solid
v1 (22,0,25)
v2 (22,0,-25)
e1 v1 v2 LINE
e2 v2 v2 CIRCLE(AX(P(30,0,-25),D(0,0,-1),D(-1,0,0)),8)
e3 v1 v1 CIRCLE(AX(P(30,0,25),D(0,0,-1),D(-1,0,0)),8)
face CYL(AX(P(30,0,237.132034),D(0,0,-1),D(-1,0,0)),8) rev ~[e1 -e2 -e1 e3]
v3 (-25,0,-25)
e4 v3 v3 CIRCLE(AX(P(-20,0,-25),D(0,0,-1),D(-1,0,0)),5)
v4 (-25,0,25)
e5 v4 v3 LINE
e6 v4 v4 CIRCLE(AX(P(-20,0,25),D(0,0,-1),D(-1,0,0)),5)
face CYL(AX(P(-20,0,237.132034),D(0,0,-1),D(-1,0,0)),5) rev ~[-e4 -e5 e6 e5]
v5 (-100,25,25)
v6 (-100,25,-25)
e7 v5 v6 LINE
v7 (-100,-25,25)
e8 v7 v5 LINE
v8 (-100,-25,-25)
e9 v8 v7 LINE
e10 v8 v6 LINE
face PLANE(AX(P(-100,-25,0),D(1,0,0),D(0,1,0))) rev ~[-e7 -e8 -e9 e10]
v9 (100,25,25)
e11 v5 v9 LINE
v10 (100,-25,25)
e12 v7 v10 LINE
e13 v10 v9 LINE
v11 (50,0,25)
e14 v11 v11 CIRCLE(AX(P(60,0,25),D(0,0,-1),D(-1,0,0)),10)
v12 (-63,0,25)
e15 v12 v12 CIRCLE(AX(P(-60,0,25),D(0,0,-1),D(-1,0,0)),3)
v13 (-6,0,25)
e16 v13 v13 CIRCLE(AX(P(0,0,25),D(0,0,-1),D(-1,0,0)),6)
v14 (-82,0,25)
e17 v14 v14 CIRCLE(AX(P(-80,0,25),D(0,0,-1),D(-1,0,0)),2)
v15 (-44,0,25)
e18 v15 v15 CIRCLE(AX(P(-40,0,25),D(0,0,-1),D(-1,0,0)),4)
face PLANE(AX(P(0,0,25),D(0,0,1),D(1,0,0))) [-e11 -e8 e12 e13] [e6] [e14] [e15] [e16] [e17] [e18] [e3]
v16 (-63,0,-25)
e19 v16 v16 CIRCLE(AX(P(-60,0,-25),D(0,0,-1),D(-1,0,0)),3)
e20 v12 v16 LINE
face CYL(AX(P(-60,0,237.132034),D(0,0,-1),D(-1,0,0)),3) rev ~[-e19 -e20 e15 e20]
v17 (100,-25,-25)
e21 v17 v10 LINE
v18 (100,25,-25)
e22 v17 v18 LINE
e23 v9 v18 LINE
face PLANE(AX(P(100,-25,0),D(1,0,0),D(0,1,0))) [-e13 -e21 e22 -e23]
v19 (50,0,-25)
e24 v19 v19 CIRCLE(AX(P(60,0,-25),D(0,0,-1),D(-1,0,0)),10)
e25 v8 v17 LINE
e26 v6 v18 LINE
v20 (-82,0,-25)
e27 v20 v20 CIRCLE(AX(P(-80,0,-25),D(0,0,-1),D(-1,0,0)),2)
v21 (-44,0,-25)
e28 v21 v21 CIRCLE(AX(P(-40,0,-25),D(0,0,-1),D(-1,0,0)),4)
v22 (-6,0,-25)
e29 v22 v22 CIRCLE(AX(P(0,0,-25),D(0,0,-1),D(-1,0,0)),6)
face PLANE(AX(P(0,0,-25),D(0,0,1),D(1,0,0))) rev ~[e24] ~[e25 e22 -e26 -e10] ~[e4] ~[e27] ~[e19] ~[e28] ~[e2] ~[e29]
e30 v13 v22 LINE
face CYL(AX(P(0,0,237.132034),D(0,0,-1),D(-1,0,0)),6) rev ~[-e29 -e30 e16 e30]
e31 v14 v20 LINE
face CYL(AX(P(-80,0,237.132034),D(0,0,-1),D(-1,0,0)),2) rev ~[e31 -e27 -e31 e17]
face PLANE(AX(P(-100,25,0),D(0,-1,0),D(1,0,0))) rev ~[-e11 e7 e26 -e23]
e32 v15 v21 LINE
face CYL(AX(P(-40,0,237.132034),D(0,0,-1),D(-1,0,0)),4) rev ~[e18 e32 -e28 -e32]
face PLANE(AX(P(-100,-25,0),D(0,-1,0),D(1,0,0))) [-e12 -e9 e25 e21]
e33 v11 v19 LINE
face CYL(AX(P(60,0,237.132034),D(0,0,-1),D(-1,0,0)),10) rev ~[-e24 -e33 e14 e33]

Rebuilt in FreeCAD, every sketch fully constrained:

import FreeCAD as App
import Part
import Sketcher

V = App.Vector


def add_polygon(sketch, points):
    """Adds a closed chain of lines whose ends are joined by coincident constraints."""
    first, n = sketch.GeometryCount, len(points)
    for a, b in zip(points, points[1:] + points[:1]):
        sketch.addGeometry(Part.LineSegment(App.Vector(*a, 0), App.Vector(*b, 0)), False)
    for i in range(n):
        sketch.addConstraint(Sketcher.Constraint("Coincident", first + i, 2, first + (i + 1) % n, 1))

doc = App.newDocument("Part")
body = doc.addObject("PartDesign::Body", "Body")

sketch1 = body.newObject("Sketcher::SketchObject", "Sketch")
sketch1.AttachmentSupport = (doc.getObject("XY_Plane"), [""])
sketch1.MapMode = "FlatFace"
add_polygon(sketch1, [(-100, 25), (-100, -25), (100, -25), (100, 25)])
sketch1.addConstraint([
    Sketcher.Constraint("Vertical", 0),
    Sketcher.Constraint("Horizontal", 1),
    Sketcher.Constraint("Vertical", 2),
    Sketcher.Constraint("Horizontal", 3),
    Sketcher.Constraint("Symmetric", 0, 2, 2, 2, -1, 1),
    Sketcher.Constraint("DistanceX", 1, 1, 1, 2, 200.0),
    Sketcher.Constraint("DistanceY", 0, 2, 0, 1, 50.0),
])
pad1 = body.newObject("PartDesign::Pad", "Pad")
pad1.Profile = sketch1
pad1.Length = 50
pad1.Midplane = True

sketch2 = body.newObject("Sketcher::SketchObject", "Sketch001")
sketch2.AttachmentSupport = (doc.getObject("XY_Plane"), [""])
sketch2.MapMode = "FlatFace"
sketch2.AttachmentOffset = App.Placement(V(0, 0, 25), App.Rotation())
sketch2.addGeometry(Part.Circle(V(-80, 0, 0), V(0, 0, 1), 2), False)
sketch2.addConstraint([
    Sketcher.Constraint("PointOnObject", 0, 3, -1),
    Sketcher.Constraint("Diameter", 0, 4.0),
    Sketcher.Constraint("DistanceX", 0, 3, -1, 1, 80.0),
])
doc.recompute()
hole = body.newObject("PartDesign::Hole", "Hole")
hole.Profile = sketch2
hole.ThreadType = "None"
hole.Diameter = 4
hole.DepthType = "ThroughAll"

sketch3 = body.newObject("Sketcher::SketchObject", "Sketch002")
sketch3.AttachmentSupport = (doc.getObject("XY_Plane"), [""])
sketch3.MapMode = "FlatFace"
sketch3.AttachmentOffset = App.Placement(V(0, 0, 25), App.Rotation())
sketch3.addGeometry(Part.Circle(V(-60, 0, 0), V(0, 0, 1), 3), False)
sketch3.addConstraint([
    Sketcher.Constraint("PointOnObject", 0, 3, -1),
    Sketcher.Constraint("Diameter", 0, 6.0),
    Sketcher.Constraint("DistanceX", 0, 3, -1, 1, 60.0),
])
doc.recompute()
hole2 = body.newObject("PartDesign::Hole", "Hole001")
hole2.Profile = sketch3
hole2.ThreadType = "None"
hole2.Diameter = 6
hole2.DepthType = "ThroughAll"

sketch4 = body.newObject("Sketcher::SketchObject", "Sketch003")
sketch4.AttachmentSupport = (doc.getObject("XY_Plane"), [""])
sketch4.MapMode = "FlatFace"
sketch4.AttachmentOffset = App.Placement(V(0, 0, 25), App.Rotation())
sketch4.addGeometry(Part.Circle(V(-40, 0, 0), V(0, 0, 1), 4), False)
sketch4.addConstraint([
    Sketcher.Constraint("PointOnObject", 0, 3, -1),
    Sketcher.Constraint("Diameter", 0, 8.0),
    Sketcher.Constraint("DistanceX", 0, 3, -1, 1, 40.0),
])
doc.recompute()
hole3 = body.newObject("PartDesign::Hole", "Hole002")
hole3.Profile = sketch4
hole3.ThreadType = "None"
hole3.Diameter = 8
hole3.DepthType = "ThroughAll"

sketch5 = body.newObject("Sketcher::SketchObject", "Sketch004")
sketch5.AttachmentSupport = (doc.getObject("XY_Plane"), [""])
sketch5.MapMode = "FlatFace"
sketch5.AttachmentOffset = App.Placement(V(0, 0, 25), App.Rotation())
sketch5.addGeometry(Part.Circle(V(-20, 0, 0), V(0, 0, 1), 5), False)
sketch5.addConstraint([
    Sketcher.Constraint("PointOnObject", 0, 3, -1),
    Sketcher.Constraint("Diameter", 0, 10.0),
    Sketcher.Constraint("DistanceX", 0, 3, -1, 1, 20.0),
])
doc.recompute()
hole4 = body.newObject("PartDesign::Hole", "Hole003")
hole4.Profile = sketch5
hole4.ThreadType = "None"
hole4.Diameter = 10
hole4.DepthType = "ThroughAll"

sketch6 = body.newObject("Sketcher::SketchObject", "Sketch005")
sketch6.AttachmentSupport = (doc.getObject("XY_Plane"), [""])
sketch6.MapMode = "FlatFace"
sketch6.AttachmentOffset = App.Placement(V(0, 0, 25), App.Rotation())
sketch6.addGeometry(Part.Circle(V(0, 0, 0), V(0, 0, 1), 6), False)
sketch6.addConstraint([
    Sketcher.Constraint("Coincident", 0, 3, -1, 1),
    Sketcher.Constraint("Diameter", 0, 12.0),
])
doc.recompute()
hole5 = body.newObject("PartDesign::Hole", "Hole004")
hole5.Profile = sketch6
hole5.ThreadType = "None"
hole5.Diameter = 12
hole5.DepthType = "ThroughAll"

sketch7 = body.newObject("Sketcher::SketchObject", "Sketch006")
sketch7.AttachmentSupport = (doc.getObject("XY_Plane"), [""])
sketch7.MapMode = "FlatFace"
sketch7.AttachmentOffset = App.Placement(V(0, 0, 25), App.Rotation())
sketch7.addGeometry(Part.Circle(V(30, 0, 0), V(0, 0, 1), 8), False)
sketch7.addConstraint([
    Sketcher.Constraint("PointOnObject", 0, 3, -1),
    Sketcher.Constraint("Diameter", 0, 16.0),
    Sketcher.Constraint("DistanceX", -1, 1, 0, 3, 30.0),
])
doc.recompute()
hole6 = body.newObject("PartDesign::Hole", "Hole005")
hole6.Profile = sketch7
hole6.ThreadType = "None"
hole6.Diameter = 16
hole6.DepthType = "ThroughAll"

sketch8 = body.newObject("Sketcher::SketchObject", "Sketch007")
sketch8.AttachmentSupport = (doc.getObject("XY_Plane"), [""])
sketch8.MapMode = "FlatFace"
sketch8.AttachmentOffset = App.Placement(V(0, 0, 25), App.Rotation())
sketch8.addGeometry(Part.Circle(V(60, 0, 0), V(0, 0, 1), 10), False)
sketch8.addConstraint([
    Sketcher.Constraint("PointOnObject", 0, 3, -1),
    Sketcher.Constraint("Diameter", 0, 20.0),
    Sketcher.Constraint("DistanceX", -1, 1, 0, 3, 60.0),
])
doc.recompute()
hole7 = body.newObject("PartDesign::Hole", "Hole006")
hole7.Profile = sketch8
hole7.ThreadType = "None"
hole7.Diameter = 20
hole7.DepthType = "ThroughAll"

doc.recompute()
